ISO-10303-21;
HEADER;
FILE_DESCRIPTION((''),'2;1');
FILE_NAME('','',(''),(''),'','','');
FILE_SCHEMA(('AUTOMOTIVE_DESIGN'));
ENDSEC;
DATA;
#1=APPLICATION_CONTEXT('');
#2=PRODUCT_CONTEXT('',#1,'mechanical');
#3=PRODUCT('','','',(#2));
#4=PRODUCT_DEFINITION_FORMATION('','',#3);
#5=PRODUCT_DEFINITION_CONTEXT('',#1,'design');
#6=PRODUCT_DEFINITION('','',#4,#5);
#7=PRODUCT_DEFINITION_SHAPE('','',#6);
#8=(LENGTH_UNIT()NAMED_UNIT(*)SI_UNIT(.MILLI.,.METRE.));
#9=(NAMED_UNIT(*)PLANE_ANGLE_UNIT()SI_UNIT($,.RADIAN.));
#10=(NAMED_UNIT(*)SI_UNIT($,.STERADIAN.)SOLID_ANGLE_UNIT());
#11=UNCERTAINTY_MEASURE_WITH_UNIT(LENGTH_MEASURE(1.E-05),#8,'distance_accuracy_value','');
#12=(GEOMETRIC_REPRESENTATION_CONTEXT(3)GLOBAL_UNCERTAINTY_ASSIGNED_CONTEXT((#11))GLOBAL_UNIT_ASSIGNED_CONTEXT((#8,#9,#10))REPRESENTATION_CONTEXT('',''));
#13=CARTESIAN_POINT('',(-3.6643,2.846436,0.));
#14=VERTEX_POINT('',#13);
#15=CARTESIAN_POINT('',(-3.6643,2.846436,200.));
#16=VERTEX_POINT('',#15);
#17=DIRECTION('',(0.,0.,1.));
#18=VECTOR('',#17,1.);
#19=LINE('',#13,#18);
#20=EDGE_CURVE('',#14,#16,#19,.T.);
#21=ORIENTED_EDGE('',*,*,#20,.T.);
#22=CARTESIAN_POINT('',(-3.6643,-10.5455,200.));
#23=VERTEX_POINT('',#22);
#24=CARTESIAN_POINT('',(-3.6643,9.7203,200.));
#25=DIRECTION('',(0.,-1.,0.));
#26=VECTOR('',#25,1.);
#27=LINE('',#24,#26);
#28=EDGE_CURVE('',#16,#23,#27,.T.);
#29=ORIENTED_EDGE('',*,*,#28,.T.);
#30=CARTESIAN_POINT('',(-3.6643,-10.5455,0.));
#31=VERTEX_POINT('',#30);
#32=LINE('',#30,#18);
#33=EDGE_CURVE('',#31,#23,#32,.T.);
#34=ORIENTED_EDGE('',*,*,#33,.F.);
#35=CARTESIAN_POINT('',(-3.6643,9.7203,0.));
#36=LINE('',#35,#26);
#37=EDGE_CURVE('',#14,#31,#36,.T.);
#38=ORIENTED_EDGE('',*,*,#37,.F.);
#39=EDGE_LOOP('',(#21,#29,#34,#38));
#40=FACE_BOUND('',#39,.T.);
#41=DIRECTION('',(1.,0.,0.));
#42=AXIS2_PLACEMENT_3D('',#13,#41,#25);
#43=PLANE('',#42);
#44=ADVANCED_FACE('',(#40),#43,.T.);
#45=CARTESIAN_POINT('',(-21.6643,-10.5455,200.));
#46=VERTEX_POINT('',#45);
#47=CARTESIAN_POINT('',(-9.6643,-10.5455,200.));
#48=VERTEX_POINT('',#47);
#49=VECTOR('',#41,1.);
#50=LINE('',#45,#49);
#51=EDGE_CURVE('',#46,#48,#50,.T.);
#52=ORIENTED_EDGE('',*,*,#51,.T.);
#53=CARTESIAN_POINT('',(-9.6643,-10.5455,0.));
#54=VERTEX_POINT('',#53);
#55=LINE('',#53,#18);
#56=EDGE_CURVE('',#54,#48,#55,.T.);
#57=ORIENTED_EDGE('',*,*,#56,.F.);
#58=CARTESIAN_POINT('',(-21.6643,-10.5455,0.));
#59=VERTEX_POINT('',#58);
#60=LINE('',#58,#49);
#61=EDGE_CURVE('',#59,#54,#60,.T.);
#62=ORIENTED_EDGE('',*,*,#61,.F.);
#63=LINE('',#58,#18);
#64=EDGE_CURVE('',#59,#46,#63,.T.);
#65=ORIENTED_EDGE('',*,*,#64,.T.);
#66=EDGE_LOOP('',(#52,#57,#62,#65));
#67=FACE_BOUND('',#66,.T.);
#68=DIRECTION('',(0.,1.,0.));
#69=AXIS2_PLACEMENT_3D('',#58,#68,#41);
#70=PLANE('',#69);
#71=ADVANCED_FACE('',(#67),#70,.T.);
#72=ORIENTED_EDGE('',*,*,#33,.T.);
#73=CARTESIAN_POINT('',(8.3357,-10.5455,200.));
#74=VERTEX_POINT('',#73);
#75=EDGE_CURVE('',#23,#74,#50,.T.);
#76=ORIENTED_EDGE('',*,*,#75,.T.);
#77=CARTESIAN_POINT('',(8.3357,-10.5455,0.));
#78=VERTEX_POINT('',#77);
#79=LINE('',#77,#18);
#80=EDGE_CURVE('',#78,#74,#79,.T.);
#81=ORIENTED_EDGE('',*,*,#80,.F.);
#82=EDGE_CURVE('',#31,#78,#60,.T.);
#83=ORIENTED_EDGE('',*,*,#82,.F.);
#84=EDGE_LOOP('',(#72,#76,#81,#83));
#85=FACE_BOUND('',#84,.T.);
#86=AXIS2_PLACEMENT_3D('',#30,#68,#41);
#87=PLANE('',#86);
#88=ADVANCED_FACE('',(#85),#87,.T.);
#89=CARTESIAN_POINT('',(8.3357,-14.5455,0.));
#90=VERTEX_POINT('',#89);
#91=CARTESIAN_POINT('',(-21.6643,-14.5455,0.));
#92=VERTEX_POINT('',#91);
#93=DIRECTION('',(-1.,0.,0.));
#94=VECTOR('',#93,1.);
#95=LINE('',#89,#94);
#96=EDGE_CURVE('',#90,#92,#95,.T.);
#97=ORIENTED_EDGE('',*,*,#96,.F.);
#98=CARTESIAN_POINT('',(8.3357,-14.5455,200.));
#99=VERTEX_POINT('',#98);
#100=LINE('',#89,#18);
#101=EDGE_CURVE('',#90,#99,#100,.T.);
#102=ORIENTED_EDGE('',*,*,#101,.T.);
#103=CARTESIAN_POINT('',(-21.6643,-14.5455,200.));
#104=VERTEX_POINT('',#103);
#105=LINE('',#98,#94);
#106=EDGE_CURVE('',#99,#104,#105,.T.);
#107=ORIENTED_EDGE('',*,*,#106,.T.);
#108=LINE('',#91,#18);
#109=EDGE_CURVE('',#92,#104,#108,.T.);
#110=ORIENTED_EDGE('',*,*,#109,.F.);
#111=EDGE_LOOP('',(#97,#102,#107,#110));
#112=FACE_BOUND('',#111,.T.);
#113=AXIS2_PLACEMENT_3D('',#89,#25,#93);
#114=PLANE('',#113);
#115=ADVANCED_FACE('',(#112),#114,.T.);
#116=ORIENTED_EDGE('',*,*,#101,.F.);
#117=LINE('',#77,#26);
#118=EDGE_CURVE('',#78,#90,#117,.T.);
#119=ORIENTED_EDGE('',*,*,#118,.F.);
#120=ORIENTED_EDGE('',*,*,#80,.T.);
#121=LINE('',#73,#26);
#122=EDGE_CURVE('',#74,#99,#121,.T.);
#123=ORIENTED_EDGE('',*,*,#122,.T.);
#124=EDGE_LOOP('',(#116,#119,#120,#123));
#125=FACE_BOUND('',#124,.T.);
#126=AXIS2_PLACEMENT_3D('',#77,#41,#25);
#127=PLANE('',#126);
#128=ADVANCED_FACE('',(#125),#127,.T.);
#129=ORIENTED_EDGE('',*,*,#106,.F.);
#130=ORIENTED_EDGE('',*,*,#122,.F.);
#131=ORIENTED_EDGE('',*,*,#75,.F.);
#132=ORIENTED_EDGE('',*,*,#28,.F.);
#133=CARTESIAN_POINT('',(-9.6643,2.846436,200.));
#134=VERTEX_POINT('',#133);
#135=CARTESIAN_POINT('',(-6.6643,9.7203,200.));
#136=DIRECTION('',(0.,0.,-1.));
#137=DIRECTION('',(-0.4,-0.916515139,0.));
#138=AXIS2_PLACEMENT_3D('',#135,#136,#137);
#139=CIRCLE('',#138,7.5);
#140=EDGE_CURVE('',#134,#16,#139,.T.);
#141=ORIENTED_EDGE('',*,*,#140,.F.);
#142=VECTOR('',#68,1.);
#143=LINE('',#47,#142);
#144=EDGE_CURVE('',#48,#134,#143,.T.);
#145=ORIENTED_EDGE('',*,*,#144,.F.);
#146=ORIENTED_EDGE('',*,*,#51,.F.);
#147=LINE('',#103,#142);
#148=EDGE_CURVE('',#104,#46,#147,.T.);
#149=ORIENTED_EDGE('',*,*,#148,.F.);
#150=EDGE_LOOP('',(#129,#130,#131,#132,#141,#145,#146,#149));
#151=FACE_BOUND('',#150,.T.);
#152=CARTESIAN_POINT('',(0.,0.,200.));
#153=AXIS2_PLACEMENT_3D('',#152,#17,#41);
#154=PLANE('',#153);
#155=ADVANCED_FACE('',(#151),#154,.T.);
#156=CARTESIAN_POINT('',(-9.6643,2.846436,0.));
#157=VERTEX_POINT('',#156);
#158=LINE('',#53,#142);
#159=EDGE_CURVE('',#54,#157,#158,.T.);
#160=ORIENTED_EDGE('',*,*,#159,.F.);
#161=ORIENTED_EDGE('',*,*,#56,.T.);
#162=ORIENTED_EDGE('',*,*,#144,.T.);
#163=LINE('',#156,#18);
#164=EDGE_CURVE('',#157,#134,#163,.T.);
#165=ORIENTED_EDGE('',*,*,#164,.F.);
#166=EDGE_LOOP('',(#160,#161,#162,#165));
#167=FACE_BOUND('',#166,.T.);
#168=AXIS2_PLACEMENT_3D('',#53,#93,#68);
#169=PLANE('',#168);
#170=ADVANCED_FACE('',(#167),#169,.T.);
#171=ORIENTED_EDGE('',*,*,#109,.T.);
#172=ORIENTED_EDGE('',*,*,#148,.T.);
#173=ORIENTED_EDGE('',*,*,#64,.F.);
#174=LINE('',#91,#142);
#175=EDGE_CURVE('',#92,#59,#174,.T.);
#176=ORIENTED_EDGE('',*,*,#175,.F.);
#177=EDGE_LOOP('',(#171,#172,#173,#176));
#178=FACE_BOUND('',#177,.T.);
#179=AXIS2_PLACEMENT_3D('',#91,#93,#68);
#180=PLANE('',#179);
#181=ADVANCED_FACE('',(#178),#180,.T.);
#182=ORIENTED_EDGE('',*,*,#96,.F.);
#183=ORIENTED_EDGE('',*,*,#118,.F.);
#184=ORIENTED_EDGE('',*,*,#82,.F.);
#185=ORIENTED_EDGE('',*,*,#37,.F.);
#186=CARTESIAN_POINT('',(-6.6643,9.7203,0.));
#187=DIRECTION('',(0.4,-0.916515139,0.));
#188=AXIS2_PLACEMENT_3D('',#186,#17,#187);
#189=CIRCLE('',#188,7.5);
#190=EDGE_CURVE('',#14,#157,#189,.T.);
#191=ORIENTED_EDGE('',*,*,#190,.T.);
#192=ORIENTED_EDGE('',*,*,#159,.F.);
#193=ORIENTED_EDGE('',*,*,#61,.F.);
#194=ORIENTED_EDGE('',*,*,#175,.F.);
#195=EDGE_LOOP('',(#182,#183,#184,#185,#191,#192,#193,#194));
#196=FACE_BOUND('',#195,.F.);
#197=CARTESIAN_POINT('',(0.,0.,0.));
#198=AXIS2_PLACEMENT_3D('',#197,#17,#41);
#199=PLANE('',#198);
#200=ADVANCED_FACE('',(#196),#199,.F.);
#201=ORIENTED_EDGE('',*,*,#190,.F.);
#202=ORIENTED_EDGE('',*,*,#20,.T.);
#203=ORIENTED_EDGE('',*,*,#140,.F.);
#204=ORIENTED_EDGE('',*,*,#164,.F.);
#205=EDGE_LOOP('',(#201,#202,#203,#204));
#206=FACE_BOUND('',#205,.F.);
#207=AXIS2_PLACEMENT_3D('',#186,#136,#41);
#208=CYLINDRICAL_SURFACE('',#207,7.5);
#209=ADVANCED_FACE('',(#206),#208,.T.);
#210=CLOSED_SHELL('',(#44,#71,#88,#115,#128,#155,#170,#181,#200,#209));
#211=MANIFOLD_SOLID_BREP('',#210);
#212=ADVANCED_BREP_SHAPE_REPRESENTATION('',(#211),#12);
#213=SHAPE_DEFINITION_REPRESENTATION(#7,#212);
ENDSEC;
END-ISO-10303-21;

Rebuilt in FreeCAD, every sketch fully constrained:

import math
import FreeCAD as App
import Part
import Sketcher
from FreeCAD import Vector

doc = App.newDocument("Part")
params = doc.addObject("Spreadsheet::Sheet", "Params")
for row, (alias, value) in enumerate([
    ("sketch1_radius", "7.5 mm"),
    ("sketch1_width", "12 mm"),
    ("sketch1_width2", "30 mm"),
    ("sketch1_height", "4 mm"),
    ("pad1_length", "200 mm"),
], start=1):
    params.set(f"A{row}", alias)
    params.set(f"B{row}", "=" + value)
    params.setAlias(f"B{row}", alias)

body = doc.addObject("PartDesign::Body", "Body")

sketch1 = body.newObject("Sketcher::SketchObject", "Sketch")
sketch1.AttachmentSupport = (doc.getObject("XY_Plane"), [""])
sketch1.MapMode = "FlatFace"
sketch1.addGeometry(Part.ArcOfCircle(Part.Circle(Vector(-6.6643, 9.7203, 0), Vector(0, 0, 1), 7.5), math.radians(-66.421822), math.radians(246.421822)), False)
sketch1.addGeometry(Part.LineSegment(Vector(-9.6643, 2.846436, 0), Vector(-9.6643, -10.5455, 0)), False)
sketch1.addGeometry(Part.LineSegment(Vector(-9.6643, -10.5455, 0), Vector(-21.6643, -10.5455, 0)), False)
sketch1.addGeometry(Part.LineSegment(Vector(-21.6643, -10.5455, 0), Vector(-21.6643, -14.5455, 0)), False)
sketch1.addGeometry(Part.LineSegment(Vector(-21.6643, -14.5455, 0), Vector(8.3357, -14.5455, 0)), False)
sketch1.addGeometry(Part.LineSegment(Vector(8.3357, -14.5455, 0), Vector(8.3357, -10.5455, 0)), False)
sketch1.addGeometry(Part.LineSegment(Vector(8.3357, -10.5455, 0), Vector(-3.6643, -10.5455, 0)), False)
sketch1.addGeometry(Part.LineSegment(Vector(-3.6643, -10.5455, 0), Vector(-3.6643, 2.846436, 0)), False)
sketch1.addConstraint(Sketcher.Constraint("Coincident", 0, 2, 1, 1))
sketch1.addConstraint(Sketcher.Constraint("Coincident", 1, 2, 2, 1))
sketch1.addConstraint(Sketcher.Constraint("Coincident", 2, 2, 3, 1))
sketch1.addConstraint(Sketcher.Constraint("Coincident", 3, 2, 4, 1))
sketch1.addConstraint(Sketcher.Constraint("Coincident", 4, 2, 5, 1))
sketch1.addConstraint(Sketcher.Constraint("Coincident", 5, 2, 6, 1))
sketch1.addConstraint(Sketcher.Constraint("Coincident", 6, 2, 7, 1))
sketch1.addConstraint(Sketcher.Constraint("Coincident", 7, 2, 0, 1))
sketch1.addConstraint(Sketcher.Constraint("Vertical", 1))
sketch1.addConstraint(Sketcher.Constraint("Horizontal", 2))
sketch1.addConstraint(Sketcher.Constraint("Vertical", 3))
sketch1.addConstraint(Sketcher.Constraint("Horizontal", 4))
sketch1.addConstraint(Sketcher.Constraint("Vertical", 5))
sketch1.addConstraint(Sketcher.Constraint("Horizontal", 6))
sketch1.addConstraint(Sketcher.Constraint("Vertical", 7))
sketch1.addConstraint(Sketcher.Constraint("Horizontal", 2, 2, 5, 2))
sketch1.addConstraint(Sketcher.Constraint("Horizontal", 0, 2, 7, 2))
sketch1.addConstraint(Sketcher.Constraint("Equal", 2, 6))
sketch1.addConstraint(Sketcher.Constraint("Radius", 0, 7.5))
sketch1.addConstraint(Sketcher.Constraint("DistanceX", 2, 2, 2, 1, 12.0))
sketch1.addConstraint(Sketcher.Constraint("DistanceX", 4, 1, 4, 2, 30.0))
sketch1.addConstraint(Sketcher.Constraint("DistanceY", 3, 2, 3, 1, 4.0))
sketch1.addConstraint(Sketcher.Constraint("DistanceY", 1, 2, 1, 1, 13.392))
sketch1.addConstraint(Sketcher.Constraint("DistanceX", 0, 3, -1, 1, 6.6643))
sketch1.addConstraint(Sketcher.Constraint("DistanceY", -1, 1, 0, 3, 9.7203))
sketch1.setExpression("Constraints[18]", "Params.sketch1_radius")
sketch1.setExpression("Constraints[19]", "Params.sketch1_width")
sketch1.setExpression("Constraints[20]", "Params.sketch1_width2")
sketch1.setExpression("Constraints[21]", "Params.sketch1_height")
pad1 = body.newObject("PartDesign::Pad", "Pad")
pad1.Profile = sketch1
pad1.setExpression("Length", "Params.pad1_length")

doc.recompute()
